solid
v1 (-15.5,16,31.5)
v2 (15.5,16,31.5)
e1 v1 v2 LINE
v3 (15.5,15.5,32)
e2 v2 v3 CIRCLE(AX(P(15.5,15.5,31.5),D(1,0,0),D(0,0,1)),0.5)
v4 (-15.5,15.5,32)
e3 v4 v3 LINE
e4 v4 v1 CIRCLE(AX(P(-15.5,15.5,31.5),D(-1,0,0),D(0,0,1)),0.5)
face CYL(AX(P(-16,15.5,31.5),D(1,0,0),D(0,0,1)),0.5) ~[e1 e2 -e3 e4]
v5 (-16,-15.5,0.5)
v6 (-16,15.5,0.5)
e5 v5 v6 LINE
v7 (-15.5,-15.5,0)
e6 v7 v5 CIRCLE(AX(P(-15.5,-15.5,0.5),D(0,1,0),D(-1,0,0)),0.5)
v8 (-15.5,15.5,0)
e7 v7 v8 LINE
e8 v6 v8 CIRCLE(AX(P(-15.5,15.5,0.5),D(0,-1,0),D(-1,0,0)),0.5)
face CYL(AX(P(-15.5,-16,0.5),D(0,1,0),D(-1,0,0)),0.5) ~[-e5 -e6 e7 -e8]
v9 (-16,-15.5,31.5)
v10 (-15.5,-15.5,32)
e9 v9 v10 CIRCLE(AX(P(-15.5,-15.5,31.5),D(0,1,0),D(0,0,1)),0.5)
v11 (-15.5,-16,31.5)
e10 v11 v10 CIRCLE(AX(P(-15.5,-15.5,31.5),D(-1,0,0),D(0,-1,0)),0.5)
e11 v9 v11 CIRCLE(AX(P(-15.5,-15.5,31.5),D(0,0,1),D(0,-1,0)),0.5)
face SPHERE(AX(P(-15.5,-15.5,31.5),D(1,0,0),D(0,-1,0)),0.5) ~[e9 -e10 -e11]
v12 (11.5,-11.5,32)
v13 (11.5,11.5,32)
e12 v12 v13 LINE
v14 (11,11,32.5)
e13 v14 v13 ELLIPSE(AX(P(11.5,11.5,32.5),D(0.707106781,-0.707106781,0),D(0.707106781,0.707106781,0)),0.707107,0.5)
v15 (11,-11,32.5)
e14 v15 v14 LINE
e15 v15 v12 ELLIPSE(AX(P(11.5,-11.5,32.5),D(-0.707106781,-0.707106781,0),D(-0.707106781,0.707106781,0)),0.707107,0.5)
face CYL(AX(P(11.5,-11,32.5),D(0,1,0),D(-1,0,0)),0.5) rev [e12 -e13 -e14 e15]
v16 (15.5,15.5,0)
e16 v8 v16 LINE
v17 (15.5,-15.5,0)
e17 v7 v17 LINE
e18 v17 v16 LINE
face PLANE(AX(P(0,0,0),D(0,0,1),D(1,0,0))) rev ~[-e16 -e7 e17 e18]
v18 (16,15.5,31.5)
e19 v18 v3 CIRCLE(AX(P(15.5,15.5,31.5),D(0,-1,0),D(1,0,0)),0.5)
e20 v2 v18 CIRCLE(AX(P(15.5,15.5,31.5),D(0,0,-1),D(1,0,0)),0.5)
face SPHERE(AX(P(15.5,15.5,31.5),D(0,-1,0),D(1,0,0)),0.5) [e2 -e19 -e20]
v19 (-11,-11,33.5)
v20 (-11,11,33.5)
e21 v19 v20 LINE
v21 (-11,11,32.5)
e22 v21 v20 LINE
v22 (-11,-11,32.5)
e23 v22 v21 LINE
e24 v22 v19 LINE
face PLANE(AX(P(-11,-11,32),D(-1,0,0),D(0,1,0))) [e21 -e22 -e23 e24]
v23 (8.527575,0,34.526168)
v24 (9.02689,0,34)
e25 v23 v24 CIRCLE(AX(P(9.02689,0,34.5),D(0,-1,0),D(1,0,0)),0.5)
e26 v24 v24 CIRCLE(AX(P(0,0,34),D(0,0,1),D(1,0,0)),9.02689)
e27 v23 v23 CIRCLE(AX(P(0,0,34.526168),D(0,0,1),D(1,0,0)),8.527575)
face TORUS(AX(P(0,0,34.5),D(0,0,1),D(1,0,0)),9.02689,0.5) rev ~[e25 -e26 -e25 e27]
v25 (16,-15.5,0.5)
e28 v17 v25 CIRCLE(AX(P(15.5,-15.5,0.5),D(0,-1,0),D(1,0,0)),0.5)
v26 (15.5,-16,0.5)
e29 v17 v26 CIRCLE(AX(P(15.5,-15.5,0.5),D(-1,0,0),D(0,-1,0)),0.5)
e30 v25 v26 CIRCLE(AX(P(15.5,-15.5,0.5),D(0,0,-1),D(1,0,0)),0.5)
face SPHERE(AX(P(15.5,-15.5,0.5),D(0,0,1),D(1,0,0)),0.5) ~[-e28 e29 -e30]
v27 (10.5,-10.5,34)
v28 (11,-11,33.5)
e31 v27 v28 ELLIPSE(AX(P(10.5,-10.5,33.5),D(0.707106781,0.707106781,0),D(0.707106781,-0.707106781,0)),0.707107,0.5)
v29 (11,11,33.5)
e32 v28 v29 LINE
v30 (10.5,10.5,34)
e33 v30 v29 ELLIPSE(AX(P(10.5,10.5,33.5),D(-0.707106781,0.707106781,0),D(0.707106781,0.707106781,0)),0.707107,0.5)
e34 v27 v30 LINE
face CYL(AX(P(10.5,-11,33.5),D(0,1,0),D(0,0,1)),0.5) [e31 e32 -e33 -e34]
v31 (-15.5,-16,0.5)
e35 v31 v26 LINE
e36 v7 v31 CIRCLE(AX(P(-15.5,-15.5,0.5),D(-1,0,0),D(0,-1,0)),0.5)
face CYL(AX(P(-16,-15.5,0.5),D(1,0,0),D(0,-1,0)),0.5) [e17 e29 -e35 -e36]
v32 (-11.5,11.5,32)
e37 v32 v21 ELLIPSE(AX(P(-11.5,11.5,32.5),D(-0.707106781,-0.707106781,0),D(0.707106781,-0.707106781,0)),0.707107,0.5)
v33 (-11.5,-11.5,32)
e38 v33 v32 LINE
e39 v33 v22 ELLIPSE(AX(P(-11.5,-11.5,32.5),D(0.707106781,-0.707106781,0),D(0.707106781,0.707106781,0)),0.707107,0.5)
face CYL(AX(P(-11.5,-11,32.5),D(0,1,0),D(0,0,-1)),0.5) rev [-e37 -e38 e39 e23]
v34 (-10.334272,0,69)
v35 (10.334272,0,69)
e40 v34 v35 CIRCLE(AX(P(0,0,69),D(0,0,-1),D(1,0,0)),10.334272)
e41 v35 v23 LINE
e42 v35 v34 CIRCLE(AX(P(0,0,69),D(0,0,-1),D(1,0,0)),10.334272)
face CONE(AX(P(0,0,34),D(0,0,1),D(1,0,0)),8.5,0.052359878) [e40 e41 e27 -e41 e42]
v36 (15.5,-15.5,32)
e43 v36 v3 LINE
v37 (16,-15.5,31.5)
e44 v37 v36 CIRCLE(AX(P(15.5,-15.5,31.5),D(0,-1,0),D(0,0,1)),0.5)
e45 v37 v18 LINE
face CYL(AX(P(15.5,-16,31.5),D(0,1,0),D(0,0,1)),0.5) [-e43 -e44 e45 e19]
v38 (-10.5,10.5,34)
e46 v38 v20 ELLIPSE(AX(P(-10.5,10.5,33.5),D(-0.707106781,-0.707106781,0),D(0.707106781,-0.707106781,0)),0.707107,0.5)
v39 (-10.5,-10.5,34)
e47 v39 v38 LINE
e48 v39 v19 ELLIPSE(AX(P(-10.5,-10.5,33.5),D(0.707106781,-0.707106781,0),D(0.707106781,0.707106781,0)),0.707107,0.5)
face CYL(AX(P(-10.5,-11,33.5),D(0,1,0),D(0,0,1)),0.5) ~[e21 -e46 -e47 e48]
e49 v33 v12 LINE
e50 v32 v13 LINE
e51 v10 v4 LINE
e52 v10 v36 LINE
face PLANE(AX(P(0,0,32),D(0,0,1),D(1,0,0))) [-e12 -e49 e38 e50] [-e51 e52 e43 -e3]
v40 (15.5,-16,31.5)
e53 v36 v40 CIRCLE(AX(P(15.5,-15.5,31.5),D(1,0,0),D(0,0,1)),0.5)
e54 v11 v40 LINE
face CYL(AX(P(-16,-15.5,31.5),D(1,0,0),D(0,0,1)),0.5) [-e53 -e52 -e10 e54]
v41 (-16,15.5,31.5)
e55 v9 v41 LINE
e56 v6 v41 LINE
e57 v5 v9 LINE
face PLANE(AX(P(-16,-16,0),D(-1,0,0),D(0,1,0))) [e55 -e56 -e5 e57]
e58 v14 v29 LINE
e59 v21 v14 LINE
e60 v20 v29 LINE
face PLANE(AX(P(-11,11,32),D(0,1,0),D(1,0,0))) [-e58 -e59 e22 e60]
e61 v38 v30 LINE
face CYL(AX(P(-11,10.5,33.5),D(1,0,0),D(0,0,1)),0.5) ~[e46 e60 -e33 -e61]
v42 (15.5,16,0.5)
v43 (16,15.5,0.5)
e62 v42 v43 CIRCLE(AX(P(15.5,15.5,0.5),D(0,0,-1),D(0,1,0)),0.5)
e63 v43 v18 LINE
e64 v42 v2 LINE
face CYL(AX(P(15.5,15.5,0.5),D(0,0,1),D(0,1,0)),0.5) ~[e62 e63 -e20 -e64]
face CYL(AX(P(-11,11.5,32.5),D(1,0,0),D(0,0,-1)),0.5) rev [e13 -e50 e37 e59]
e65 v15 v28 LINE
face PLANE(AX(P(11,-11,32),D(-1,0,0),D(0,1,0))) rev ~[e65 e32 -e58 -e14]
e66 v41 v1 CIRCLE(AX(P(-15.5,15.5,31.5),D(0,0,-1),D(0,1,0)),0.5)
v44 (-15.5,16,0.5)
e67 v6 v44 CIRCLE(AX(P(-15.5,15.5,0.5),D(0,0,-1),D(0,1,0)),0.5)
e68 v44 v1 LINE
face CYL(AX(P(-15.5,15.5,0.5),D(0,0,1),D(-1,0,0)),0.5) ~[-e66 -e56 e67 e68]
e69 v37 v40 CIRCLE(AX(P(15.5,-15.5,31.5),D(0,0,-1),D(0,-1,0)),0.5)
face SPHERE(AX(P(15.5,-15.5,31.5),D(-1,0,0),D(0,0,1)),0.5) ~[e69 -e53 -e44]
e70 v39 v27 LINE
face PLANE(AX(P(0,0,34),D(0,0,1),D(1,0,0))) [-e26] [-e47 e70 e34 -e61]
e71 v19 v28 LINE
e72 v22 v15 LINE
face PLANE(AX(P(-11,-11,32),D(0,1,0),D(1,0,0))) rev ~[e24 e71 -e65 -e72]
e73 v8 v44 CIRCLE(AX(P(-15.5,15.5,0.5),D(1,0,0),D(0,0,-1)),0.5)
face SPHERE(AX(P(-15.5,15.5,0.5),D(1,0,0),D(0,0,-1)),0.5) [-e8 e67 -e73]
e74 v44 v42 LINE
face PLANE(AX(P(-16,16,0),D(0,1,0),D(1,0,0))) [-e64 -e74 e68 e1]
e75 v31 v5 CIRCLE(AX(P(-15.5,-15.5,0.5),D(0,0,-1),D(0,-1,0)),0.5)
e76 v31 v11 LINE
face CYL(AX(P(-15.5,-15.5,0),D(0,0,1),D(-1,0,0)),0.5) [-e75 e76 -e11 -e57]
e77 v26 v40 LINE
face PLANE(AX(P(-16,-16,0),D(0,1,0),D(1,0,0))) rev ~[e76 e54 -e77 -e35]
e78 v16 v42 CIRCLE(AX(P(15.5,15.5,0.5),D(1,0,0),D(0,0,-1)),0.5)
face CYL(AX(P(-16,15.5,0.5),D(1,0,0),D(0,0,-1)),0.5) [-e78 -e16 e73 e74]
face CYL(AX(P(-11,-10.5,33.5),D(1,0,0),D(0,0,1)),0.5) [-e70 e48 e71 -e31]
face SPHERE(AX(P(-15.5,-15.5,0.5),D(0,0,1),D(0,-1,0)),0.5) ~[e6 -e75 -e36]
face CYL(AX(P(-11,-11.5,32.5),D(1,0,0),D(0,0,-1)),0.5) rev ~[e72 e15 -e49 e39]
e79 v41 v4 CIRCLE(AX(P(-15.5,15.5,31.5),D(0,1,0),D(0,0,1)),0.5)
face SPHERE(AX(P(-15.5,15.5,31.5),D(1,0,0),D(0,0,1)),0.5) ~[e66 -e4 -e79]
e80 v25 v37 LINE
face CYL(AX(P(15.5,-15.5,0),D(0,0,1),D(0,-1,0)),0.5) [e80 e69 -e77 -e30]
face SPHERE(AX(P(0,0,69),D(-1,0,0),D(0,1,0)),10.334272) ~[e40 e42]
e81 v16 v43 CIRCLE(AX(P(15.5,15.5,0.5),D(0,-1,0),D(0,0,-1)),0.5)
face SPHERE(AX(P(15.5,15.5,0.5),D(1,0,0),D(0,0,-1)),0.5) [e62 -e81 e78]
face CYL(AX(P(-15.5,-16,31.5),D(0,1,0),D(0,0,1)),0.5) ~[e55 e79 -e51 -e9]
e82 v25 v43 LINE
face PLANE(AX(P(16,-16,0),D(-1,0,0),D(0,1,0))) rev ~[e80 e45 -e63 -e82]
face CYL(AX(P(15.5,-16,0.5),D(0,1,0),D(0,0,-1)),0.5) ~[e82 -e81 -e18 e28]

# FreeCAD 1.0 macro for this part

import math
import FreeCAD as App
import Part
import Sketcher
Q = App.Units.Quantity


def edges_at(feature, points):
    """Names of the edges that pass closest to the given points."""
    edges = feature.Shape.Edges
    near = lambda p: min(range(len(edges)), key=lambda i: edges[i].distToShape(Part.Vertex(*p))[0])
    return sorted({f"Edge{near(p) + 1}" for p in points})

doc = App.newDocument("Part")
body = doc.addObject("PartDesign::Body", "Body")

sketch1 = doc.addObject("Sketcher::SketchObject", "Sketch")
body.addObject(sketch1)
sketch1.AttachmentSupport = (doc.XY_Plane, [""])
sketch1.MapMode = "FlatFace"
sketch1.addGeometry([
    Part.LineSegment(App.Vector(-16, 16, 0), App.Vector(-16, -16, 0)),
    Part.LineSegment(App.Vector(-16, -16, 0), App.Vector(16, -16, 0)),
    Part.LineSegment(App.Vector(16, -16, 0), App.Vector(16, 16, 0)),
    Part.LineSegment(App.Vector(16, 16, 0), App.Vector(-16, 16, 0)),
], False)
sketch1.addConstraint([
    Sketcher.Constraint("Coincident", 0, 2, 1, 1),
    Sketcher.Constraint("Coincident", 1, 2, 2, 1),
    Sketcher.Constraint("Coincident", 2, 2, 3, 1),
    Sketcher.Constraint("Coincident", 3, 2, 0, 1),
    Sketcher.Constraint("Vertical", 0),
    Sketcher.Constraint("Horizontal", 1),
    Sketcher.Constraint("Vertical", 2),
    Sketcher.Constraint("Horizontal", 3),
    Sketcher.Constraint("Symmetric", 0, 2, 2, 2, -1, 1),
    Sketcher.Constraint("Equal", 3, 0),
    Sketcher.Constraint("DistanceX", 1, 1, 1, 2, Q("32 mm")),
])
pad1 = doc.addObject("PartDesign::Pad", "Pad")
body.addObject(pad1)
pad1.Profile = sketch1
pad1.Length = 32

sketch2 = doc.addObject("Sketcher::SketchObject", "Sketch001")
body.addObject(sketch2)
sketch2.AttachmentSupport = (doc.XY_Plane, [""])
sketch2.MapMode = "FlatFace"
sketch2.AttachmentOffset = App.Placement(App.Vector(0, 0, 32), App.Rotation())
sketch2.addGeometry([
    Part.LineSegment(App.Vector(-11, 11, 0), App.Vector(-11, -11, 0)),
    Part.LineSegment(App.Vector(-11, -11, 0), App.Vector(11, -11, 0)),
    Part.LineSegment(App.Vector(11, -11, 0), App.Vector(11, 11, 0)),
    Part.LineSegment(App.Vector(11, 11, 0), App.Vector(-11, 11, 0)),
], False)
sketch2.addConstraint([
    Sketcher.Constraint("Coincident", 0, 2, 1, 1),
    Sketcher.Constraint("Coincident", 1, 2, 2, 1),
    Sketcher.Constraint("Coincident", 2, 2, 3, 1),
    Sketcher.Constraint("Coincident", 3, 2, 0, 1),
    Sketcher.Constraint("Vertical", 0),
    Sketcher.Constraint("Horizontal", 1),
    Sketcher.Constraint("Vertical", 2),
    Sketcher.Constraint("Horizontal", 3),
    Sketcher.Constraint("Symmetric", 0, 2, 2, 2, -1, 1),
    Sketcher.Constraint("Equal", 3, 0),
    Sketcher.Constraint("DistanceX", 1, 1, 1, 2, Q("22 mm")),
])
pad2 = doc.addObject("PartDesign::Pad", "Pad001")
body.addObject(pad2)
pad2.Profile = sketch2
pad2.Length = 2

sketch3 = doc.addObject("Sketcher::SketchObject", "Sketch002")
body.addObject(sketch3)
sketch3.AttachmentSupport = (doc.XY_Plane, [""])
sketch3.MapMode = "FlatFace"
sketch3.AttachmentOffset = App.Placement(App.Vector(0, 0, 34), App.Rotation())
sketch3.addGeometry(Part.Circle(App.Vector(0, 0, 0), App.Vector(0, 0, 1), 8), False)
sketch3.addConstraint([
    Sketcher.Constraint("Coincident", 0, 3, -1, 1),
    Sketcher.Constraint("Diameter", 0, Q("17 mm")),
])
pad3 = doc.addObject("PartDesign::Pad", "Pad002")
body.addObject(pad3)
pad3.Profile = sketch3
pad3.Length = 35
pad3.TaperAngle = 3

sketch4 = doc.addObject("Sketcher::SketchObject", "Sketch003")
body.addObject(sketch4)
sketch4.AttachmentSupport = (doc.XY_Plane, [""])
sketch4.MapMode = "FlatFace"
sketch4.AttachmentOffset = App.Placement(App.Vector(0, 0, 69), App.Rotation())
sketch4.addGeometry([
    Part.ArcOfCircle(Part.Circle(App.Vector(0, 0, 0), App.Vector(0, 0, 1), 10), math.radians(0), math.radians(180)),
    Part.LineSegment(App.Vector(-10, 0, 0), App.Vector(10, 0, 0)),
], False)
sketch4.addConstraint([
    Sketcher.Constraint("Coincident", 0, 1, 1, 2),
    Sketcher.Constraint("Coincident", 1, 1, 0, 2),
    Sketcher.Constraint("Horizontal", 1),
    Sketcher.Constraint("Coincident", 0, 3, -1, 1),
    Sketcher.Constraint("PointOnObject", 0, 1, -1),
    Sketcher.Constraint("Radius", 0, Q("10.334272 mm")),
])
revolution = doc.addObject("PartDesign::Revolution", "Revolution")
body.addObject(revolution)
revolution.Profile = sketch4
revolution.ReferenceAxis = (sketch4, ["H_Axis"])
revolution.Angle = 360
doc.recompute()

fillet = doc.addObject("PartDesign::Fillet", "Fillet")
body.addObject(fillet)
fillet.Base = (revolution, edges_at(revolution, [
    (0, -11, 34),
    (11, 0, 34),
    (11, 0, 32),
    (0, -11, 32),
    (0, 16, 0),
    (0, 11, 32),
    (0, 11, 34),
    (-11, 0, 32),
    (-11, 0, 34),
    (-8.5, 0, 34),
]))
fillet.Radius = 0.5
doc.recompute()

fillet2 = doc.addObject("PartDesign::Fillet", "Fillet001")
body.addObject(fillet2)
fillet2.Base = (fillet, edges_at(fillet, [
    (0, -16, 32),
    (16, 0, 32),
    (16, -16, 16),
    (16, 16, 16.25),
    (-16, -16, 16),
    (0, -16, 0),
    (16, -0.25, 0),
    (0, 16, 32),
    (-16, 0, 32),
    (-16, -0.25, 0),
]))
fillet2.Radius = 0.5

doc.recompute()
